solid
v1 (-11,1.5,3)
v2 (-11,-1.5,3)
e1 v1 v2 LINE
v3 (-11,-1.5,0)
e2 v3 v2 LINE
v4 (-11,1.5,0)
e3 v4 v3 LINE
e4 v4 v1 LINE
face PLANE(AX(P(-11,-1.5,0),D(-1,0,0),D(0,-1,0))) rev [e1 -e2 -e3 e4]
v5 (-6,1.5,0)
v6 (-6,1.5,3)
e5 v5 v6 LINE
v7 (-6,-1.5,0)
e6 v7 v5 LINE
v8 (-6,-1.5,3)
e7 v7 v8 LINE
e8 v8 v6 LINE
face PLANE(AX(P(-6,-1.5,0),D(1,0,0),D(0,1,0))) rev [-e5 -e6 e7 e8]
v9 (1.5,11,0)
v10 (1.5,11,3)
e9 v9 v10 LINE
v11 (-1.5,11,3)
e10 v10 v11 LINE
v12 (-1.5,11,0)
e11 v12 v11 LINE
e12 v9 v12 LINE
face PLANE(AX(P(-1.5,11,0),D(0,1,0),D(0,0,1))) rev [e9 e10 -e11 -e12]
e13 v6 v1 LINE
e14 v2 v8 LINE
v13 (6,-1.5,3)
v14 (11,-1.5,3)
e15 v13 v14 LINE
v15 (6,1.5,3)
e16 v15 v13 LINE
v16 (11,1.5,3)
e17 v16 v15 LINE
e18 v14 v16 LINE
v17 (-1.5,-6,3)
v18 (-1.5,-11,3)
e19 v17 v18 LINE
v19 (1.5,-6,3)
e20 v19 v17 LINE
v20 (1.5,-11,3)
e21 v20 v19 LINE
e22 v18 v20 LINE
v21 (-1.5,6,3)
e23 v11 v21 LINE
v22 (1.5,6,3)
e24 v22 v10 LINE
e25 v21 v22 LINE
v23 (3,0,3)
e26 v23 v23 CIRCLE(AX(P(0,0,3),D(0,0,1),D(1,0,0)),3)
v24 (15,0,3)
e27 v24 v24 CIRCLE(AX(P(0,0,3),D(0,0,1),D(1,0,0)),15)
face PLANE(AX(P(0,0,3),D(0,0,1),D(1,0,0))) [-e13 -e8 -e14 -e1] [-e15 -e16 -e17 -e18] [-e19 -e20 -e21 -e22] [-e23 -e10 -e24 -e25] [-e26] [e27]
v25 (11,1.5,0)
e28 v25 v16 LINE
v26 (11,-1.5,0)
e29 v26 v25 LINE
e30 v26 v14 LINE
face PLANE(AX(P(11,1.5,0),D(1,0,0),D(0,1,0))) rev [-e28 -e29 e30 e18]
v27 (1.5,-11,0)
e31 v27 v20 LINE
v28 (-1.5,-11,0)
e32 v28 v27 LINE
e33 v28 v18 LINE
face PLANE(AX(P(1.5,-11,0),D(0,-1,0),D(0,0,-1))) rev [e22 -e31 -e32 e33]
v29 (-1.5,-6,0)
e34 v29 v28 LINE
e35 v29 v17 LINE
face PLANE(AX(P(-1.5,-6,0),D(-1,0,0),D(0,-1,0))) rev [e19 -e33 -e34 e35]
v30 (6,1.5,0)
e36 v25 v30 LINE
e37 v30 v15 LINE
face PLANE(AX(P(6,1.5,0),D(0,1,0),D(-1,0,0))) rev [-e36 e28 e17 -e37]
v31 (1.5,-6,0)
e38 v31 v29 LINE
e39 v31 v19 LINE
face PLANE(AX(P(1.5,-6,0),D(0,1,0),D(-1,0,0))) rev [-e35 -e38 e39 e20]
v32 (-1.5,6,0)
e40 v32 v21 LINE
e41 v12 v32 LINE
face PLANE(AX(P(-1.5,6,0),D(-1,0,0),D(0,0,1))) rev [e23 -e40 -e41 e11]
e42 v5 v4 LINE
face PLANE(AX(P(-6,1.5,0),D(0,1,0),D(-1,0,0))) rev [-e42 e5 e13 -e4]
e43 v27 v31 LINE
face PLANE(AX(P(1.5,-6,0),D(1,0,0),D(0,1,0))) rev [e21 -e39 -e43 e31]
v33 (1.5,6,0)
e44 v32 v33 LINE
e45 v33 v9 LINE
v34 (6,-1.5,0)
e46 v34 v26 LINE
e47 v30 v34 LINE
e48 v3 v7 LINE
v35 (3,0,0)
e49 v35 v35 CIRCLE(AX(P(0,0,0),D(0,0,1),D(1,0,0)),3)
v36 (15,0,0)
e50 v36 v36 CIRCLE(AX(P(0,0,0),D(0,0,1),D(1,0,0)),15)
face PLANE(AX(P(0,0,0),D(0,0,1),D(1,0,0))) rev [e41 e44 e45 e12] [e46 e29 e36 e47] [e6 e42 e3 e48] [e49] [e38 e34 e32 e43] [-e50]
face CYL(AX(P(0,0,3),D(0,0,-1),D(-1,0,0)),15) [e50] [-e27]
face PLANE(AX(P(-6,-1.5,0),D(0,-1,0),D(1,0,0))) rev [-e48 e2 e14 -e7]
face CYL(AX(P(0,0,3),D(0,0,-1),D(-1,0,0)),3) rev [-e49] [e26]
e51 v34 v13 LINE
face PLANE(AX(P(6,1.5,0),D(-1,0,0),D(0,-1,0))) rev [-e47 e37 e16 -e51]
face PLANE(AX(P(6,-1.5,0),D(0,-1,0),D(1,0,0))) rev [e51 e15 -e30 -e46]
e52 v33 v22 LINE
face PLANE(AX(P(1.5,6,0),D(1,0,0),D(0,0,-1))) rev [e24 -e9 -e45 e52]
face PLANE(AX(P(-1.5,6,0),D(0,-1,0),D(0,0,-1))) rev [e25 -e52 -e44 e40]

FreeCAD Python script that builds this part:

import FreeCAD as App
import Part
import Sketcher


def add_polygon(sketch, points):
    """Adds a closed chain of lines whose ends are joined by coincident constraints."""
    first, n = sketch.GeometryCount, len(points)
    for a, b in zip(points, points[1:] + points[:1]):
        sketch.addGeometry(Part.LineSegment(App.Vector(*a, 0), App.Vector(*b, 0)), False)
    for i in range(n):
        sketch.addConstraint(Sketcher.Constraint("Coincident", first + i, 2, first + (i + 1) % n, 1))

doc = App.newDocument("Part")
params = doc.addObject("Spreadsheet::Sheet", "Params")
for row, (alias, value) in enumerate([
    ("sketch1_diameter", "30 mm"),
    ("sketch1_diameter2", "6 mm"),
    ("pad1_length", "3 mm"),
    ("sketch2_width", "5 mm"),
    ("sketch2_width2", "3 mm"),
    ("pocket1_length", "3 mm"),
], start=1):
    params.set(f"A{row}", alias)
    params.set(f"B{row}", "=" + value)
    params.setAlias(f"B{row}", alias)

body = doc.addObject("PartDesign::Body", "Body")

sketch1 = body.newObject("Sketcher::SketchObject", "Sketch")
sketch1.AttachmentSupport = (doc.getObject("XY_Plane"), [""])
sketch1.MapMode = "FlatFace"
sketch1.addGeometry(Part.Circle(App.Vector(0, 0, 0), App.Vector(0, 0, 1), 15), False)
sketch1.addGeometry(Part.Circle(App.Vector(0, 0, 0), App.Vector(0, 0, 1), 3), False)
sketch1.addConstraint(Sketcher.Constraint("Coincident", 0, 3, -1, 1))
sketch1.addConstraint(Sketcher.Constraint("Coincident", 1, 3, -1, 1))
sketch1.addConstraint(Sketcher.Constraint("Diameter", 0, 30.0))
sketch1.addConstraint(Sketcher.Constraint("Diameter", 1, 6.0))
sketch1.setExpression("Constraints[2]", "Params.sketch1_diameter")
sketch1.setExpression("Constraints[3]", "Params.sketch1_diameter2")
pad1 = body.newObject("PartDesign::Pad", "Pad")
pad1.Profile = sketch1
pad1.setExpression("Length", "Params.pad1_length")

sketch2 = body.newObject("Sketcher::SketchObject", "Sketch001")
sketch2.AttachmentSupport = (doc.getObject("XY_Plane"), [""])
sketch2.MapMode = "FlatFace"
sketch2.AttachmentOffset = App.Placement(App.Vector(0, 0, 3), App.Rotation())
add_polygon(sketch2, [(6, 1.5), (6, -1.5), (11, -1.5), (11, 1.5)])
add_polygon(sketch2, [(-1.5, 11), (-1.5, 6), (1.5, 6), (1.5, 11)])
add_polygon(sketch2, [(-1.5, -6), (-1.5, -11), (1.5, -11), (1.5, -6)])
add_polygon(sketch2, [(-11, 1.5), (-11, -1.5), (-6, -1.5), (-6, 1.5)])
sketch2.addConstraint(Sketcher.Constraint("Vertical", 0))
sketch2.addConstraint(Sketcher.Constraint("Horizontal", 1))
sketch2.addConstraint(Sketcher.Constraint("Vertical", 2))
sketch2.addConstraint(Sketcher.Constraint("Horizontal", 3))
sketch2.addConstraint(Sketcher.Constraint("Vertical", 4))
sketch2.addConstraint(Sketcher.Constraint("Horizontal", 5))
sketch2.addConstraint(Sketcher.Constraint("Vertical", 6))
sketch2.addConstraint(Sketcher.Constraint("Horizontal", 7))
sketch2.addConstraint(Sketcher.Constraint("Vertical", 8))
sketch2.addConstraint(Sketcher.Constraint("Horizontal", 9))
sketch2.addConstraint(Sketcher.Constraint("Vertical", 10))
sketch2.addConstraint(Sketcher.Constraint("Horizontal", 11))
sketch2.addConstraint(Sketcher.Constraint("Vertical", 12))
sketch2.addConstraint(Sketcher.Constraint("Horizontal", 13))
sketch2.addConstraint(Sketcher.Constraint("Vertical", 14))
sketch2.addConstraint(Sketcher.Constraint("Horizontal", 15))
sketch2.addConstraint(Sketcher.Constraint("Symmetric", 6, 2, 8, 2, -1, 1))
sketch2.addConstraint(Sketcher.Constraint("Symmetric", 4, 2, 10, 2, -1, 1))
sketch2.addConstraint(Sketcher.Constraint("Symmetric", 2, 2, 12, 2, -1, 1))
sketch2.addConstraint(Sketcher.Constraint("Symmetric", 0, 2, 14, 2, -1, 1))
sketch2.addConstraint(Sketcher.Constraint("Horizontal", 1, 2, 12, 2))
sketch2.addConstraint(Sketcher.Constraint("Vertical", 7, 2, 8, 2))
sketch2.addConstraint(Sketcher.Constraint("Equal", 11, 0))
sketch2.addConstraint(Sketcher.Constraint("Equal", 15, 4))
sketch2.addConstraint(Sketcher.Constraint("DistanceX", 1, 1, 1, 2, 5.0))
sketch2.addConstraint(Sketcher.Constraint("DistanceX", 5, 1, 5, 2, 3.0))
sketch2.addConstraint(Sketcher.Constraint("DistanceX", -1, 1, 0, 2, 6.0))
sketch2.addConstraint(Sketcher.Constraint("DistanceY", -1, 1, 4, 2, 6.0))
sketch2.setExpression("Constraints[40]", "Params.sketch2_width")
sketch2.setExpression("Constraints[41]", "Params.sketch2_width2")
pocket1 = body.newObject("PartDesign::Pocket", "Pocket")
pocket1.Profile = sketch2
pocket1.setExpression("Length", "Params.pocket1_length")

doc.recompute()
